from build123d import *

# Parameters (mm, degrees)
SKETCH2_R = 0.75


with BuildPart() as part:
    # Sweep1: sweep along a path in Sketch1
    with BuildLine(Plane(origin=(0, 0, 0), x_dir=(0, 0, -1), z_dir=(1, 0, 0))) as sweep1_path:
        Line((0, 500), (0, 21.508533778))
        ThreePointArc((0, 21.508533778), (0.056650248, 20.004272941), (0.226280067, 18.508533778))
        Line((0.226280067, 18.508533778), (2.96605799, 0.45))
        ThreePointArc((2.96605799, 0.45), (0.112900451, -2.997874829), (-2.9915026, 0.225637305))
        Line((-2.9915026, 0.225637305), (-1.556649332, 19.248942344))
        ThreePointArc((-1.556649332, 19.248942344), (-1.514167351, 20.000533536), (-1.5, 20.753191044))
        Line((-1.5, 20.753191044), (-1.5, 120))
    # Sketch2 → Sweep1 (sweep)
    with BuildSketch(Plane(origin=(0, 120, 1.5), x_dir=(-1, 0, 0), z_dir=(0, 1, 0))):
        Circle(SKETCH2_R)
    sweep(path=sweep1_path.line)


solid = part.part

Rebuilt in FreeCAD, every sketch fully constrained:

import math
import FreeCAD as App
import Part
import Sketcher

doc = App.newDocument("Part")
body = doc.addObject("PartDesign::Body", "Body")

sketch1 = body.newObject("Sketcher::SketchObject", "Sketch")
sketch1.AttachmentSupport = (doc.getObject("XZ_Plane"), [""])
sketch1.MapMode = "FlatFace"
sketch1.AttachmentOffset = App.Placement(App.Vector(0, 0, -120), App.Rotation())
sketch1.addGeometry(Part.Circle(App.Vector(0, 1.5, 0), App.Vector(0, 0, 1), 0.8), False)
sketch1.addConstraint([
    Sketcher.Constraint("PointOnObject", 0, 3, -2),
    Sketcher.Constraint("Diameter", 0, 1.5),
    Sketcher.Constraint("DistanceY", -1, 1, 0, 3, 1.5),
])

sketch2 = body.newObject("Sketcher::SketchObject", "Sketch001")
sketch2.AttachmentSupport = (doc.getObject("YZ_Plane"), [""])
sketch2.MapMode = "FlatFace"
sketch2.addGeometry([
    Part.LineSegment(App.Vector(500, 0, 0), App.Vector(21.5, 0, 0)),
    Part.ArcOfCircle(Part.Circle(App.Vector(21.5, -20, 0), App.Vector(0, 0, 1), 20), math.radians(90), math.radians(98.63)),
    Part.LineSegment(App.Vector(18.5, -0.2, 0), App.Vector(0.5, -3, 0)),
    Part.ArcOfCircle(Part.Circle(App.Vector(0, 0, 0), App.Vector(0, 0, 1), 3), math.radians(86), math.radians(279)),
    Part.LineSegment(App.Vector(0.2, 3, 0), App.Vector(19.2, 1.6, 0)),
    Part.ArcOfCircle(Part.Circle(App.Vector(20.8, 21.5, 0), App.Vector(0, 0, 1), 20), math.radians(-94.31), math.radians(-90)),
    Part.LineSegment(App.Vector(20.8, 1.5, 0), App.Vector(120, 1.5, 0)),
], False)
sketch2.addConstraint([
    Sketcher.Constraint("Tangent", 0, 2, 1, 1),
    Sketcher.Constraint("Tangent", 1, 2, 2, 1),
    Sketcher.Constraint("Tangent", 2, 2, 3, 2),
    Sketcher.Constraint("Tangent", 3, 1, 4, 1),
    Sketcher.Constraint("Tangent", 4, 2, 5, 1),
    Sketcher.Constraint("Tangent", 5, 2, 6, 1),
    Sketcher.Constraint("Horizontal", 0),
    Sketcher.Constraint("Horizontal", 6),
    Sketcher.Constraint("Coincident", 3, 3, -1, 1),
    Sketcher.Constraint("Equal", 1, 5),
    Sketcher.Constraint("PointOnObject", 0, 1, -1),
    Sketcher.Constraint("Radius", 1, 20.0),
    Sketcher.Constraint("Radius", 3, 3.0),
    Sketcher.Constraint("DistanceX", -1, 1, 0, 1, 500.0),
    Sketcher.Constraint("DistanceX", -1, 1, 6, 2, 120.0),
    Sketcher.Constraint("DistanceX", 1, 2, 0, 2, 3.0),
    Sketcher.Constraint("DistanceY", -1, 1, 5, 3, 21.5),
    Sketcher.Constraint("DistanceX", 6, 1, 6, 2, 99.246809),
])
doc.recompute()

additivepipe = body.newObject("PartDesign::AdditivePipe", "AdditivePipe")
additivepipe.Profile = sketch1
additivepipe.Spine = (sketch2, ["Edge1", "Edge2", "Edge3", "Edge4", "Edge5", "Edge6", "Edge7"])

doc.recompute()
